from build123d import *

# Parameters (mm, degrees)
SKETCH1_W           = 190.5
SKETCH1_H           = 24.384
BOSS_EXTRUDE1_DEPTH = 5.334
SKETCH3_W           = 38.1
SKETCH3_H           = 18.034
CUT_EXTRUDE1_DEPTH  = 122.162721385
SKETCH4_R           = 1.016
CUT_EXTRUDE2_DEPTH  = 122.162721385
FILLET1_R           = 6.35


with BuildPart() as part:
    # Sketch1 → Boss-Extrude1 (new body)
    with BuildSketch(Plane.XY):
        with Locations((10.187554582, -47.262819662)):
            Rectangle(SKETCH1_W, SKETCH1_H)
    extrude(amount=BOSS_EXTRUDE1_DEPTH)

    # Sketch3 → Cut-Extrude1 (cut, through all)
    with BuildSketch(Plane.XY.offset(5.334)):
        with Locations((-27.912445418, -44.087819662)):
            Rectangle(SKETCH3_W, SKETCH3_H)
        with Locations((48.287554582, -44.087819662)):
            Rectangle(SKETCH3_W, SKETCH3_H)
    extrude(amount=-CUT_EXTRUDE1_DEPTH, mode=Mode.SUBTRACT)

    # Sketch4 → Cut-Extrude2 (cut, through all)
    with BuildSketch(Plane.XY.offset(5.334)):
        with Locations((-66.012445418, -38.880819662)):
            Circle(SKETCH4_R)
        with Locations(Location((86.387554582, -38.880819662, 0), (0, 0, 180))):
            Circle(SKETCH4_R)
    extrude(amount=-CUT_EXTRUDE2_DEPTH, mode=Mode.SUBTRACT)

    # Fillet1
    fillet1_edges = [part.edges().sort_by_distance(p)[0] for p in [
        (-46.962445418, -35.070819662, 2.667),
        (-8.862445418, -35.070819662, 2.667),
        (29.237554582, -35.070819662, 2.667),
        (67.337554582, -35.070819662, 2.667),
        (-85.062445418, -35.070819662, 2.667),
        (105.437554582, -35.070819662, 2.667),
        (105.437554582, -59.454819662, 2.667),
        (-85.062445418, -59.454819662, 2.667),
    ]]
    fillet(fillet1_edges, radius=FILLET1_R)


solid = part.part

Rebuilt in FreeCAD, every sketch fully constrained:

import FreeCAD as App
import Part
import Sketcher

V = App.Vector
Q = App.Units.Quantity


def edges_at(feature, points):
    """Names of the edges that pass closest to the given points."""
    edges = feature.Shape.Edges
    near = lambda p: min(range(len(edges)), key=lambda i: edges[i].distToShape(Part.Vertex(*p))[0])
    return sorted({f"Edge{near(p) + 1}" for p in points})


def add_polygon(sketch, points):
    """Adds a closed chain of lines whose ends are joined by coincident constraints."""
    first, n = sketch.GeometryCount, len(points)
    for a, b in zip(points, points[1:] + points[:1]):
        sketch.addGeometry(Part.LineSegment(App.Vector(*a, 0), App.Vector(*b, 0)), False)
    for i in range(n):
        sketch.addConstraint(Sketcher.Constraint("Coincident", first + i, 2, first + (i + 1) % n, 1))

doc = App.newDocument("Part")
body = doc.addObject("PartDesign::Body", "Body")

# Sketch on XY plane
sketch1 = doc.addObject("Sketcher::SketchObject", "Sketch")
body.addObject(sketch1)
sketch1.AttachmentSupport = (doc.XY_Plane, [""])
sketch1.MapMode = "FlatFace"
add_polygon(sketch1, [(-85, -35), (-85, -59), (105, -59), (105, -35)])  # lines 0-3
sketch1.addConstraint(Sketcher.Constraint("Vertical", 0))
sketch1.addConstraint(Sketcher.Constraint("Horizontal", 1))
sketch1.addConstraint(Sketcher.Constraint("Vertical", 2))
sketch1.addConstraint(Sketcher.Constraint("Horizontal", 3))
sketch1.addConstraint(Sketcher.Constraint("DistanceX", 1, 1, 1, 2, Q("7.5 in")))
sketch1.addConstraint(Sketcher.Constraint("DistanceY", 0, 2, 0, 1, Q("0.96 in")))
sketch1.addConstraint(Sketcher.Constraint("DistanceY", 0, 2, -1, 1, 59.45482))
sketch1.addConstraint(Sketcher.Constraint("DistanceX", 0, 2, -1, 1, 85.062445))
pad1 = doc.addObject("PartDesign::Pad", "Pad")
body.addObject(pad1)
pad1.Profile = sketch1
pad1.Length = Q("0.21 in")

# Sketch on XY plane
sketch2 = doc.addObject("Sketcher::SketchObject", "Sketch001")
body.addObject(sketch2)
sketch2.AttachmentSupport = (doc.XY_Plane, [""])
sketch2.MapMode = "FlatFace"
sketch2.AttachmentOffset = App.Placement(V(0, 0, 0.21 * 25.4), App.Rotation())
add_polygon(sketch2, [(-47, -35), (-47, -53), (-9, -53), (-9, -35)])  # lines 0-3
add_polygon(sketch2, [(29, -35), (29, -53), (67, -53), (67, -35)])  # lines 4-7
sketch2.addConstraint(Sketcher.Constraint("Vertical", 0))
sketch2.addConstraint(Sketcher.Constraint("Horizontal", 1))
sketch2.addConstraint(Sketcher.Constraint("Vertical", 2))
sketch2.addConstraint(Sketcher.Constraint("Horizontal", 3))
sketch2.addConstraint(Sketcher.Constraint("Vertical", 4))
sketch2.addConstraint(Sketcher.Constraint("Horizontal", 5))
sketch2.addConstraint(Sketcher.Constraint("Vertical", 6))
sketch2.addConstraint(Sketcher.Constraint("Horizontal", 7))
sketch2.addConstraint(Sketcher.Constraint("Horizontal", 1, 2, 4, 2))
sketch2.addConstraint(Sketcher.Constraint("Horizontal", 3, 2, 6, 2))
sketch2.addConstraint(Sketcher.Constraint("Equal", 3, 5))
sketch2.addConstraint(Sketcher.Constraint("DistanceX", 1, 1, 1, 2, Q("1.5 in")))
sketch2.addConstraint(Sketcher.Constraint("DistanceX", 0, 2, 4, 2, Q("3 in")))
sketch2.addConstraint(Sketcher.Constraint("DistanceY", 0, 2, 0, 1, Q("0.71 in")))
sketch2.addConstraint(Sketcher.Constraint("DistanceY", 0, 2, -1, 1, 53.10482))
sketch2.addConstraint(Sketcher.Constraint("DistanceX", 0, 2, -1, 1, 46.962445))
pocket1 = doc.addObject("PartDesign::Pocket", "Pocket")
body.addObject(pocket1)
pocket1.Profile = sketch2
pocket1.Type = "ThroughAll"

# Sketch on XY plane
sketch3 = doc.addObject("Sketcher::SketchObject", "Sketch002")
body.addObject(sketch3)
sketch3.AttachmentSupport = (doc.XY_Plane, [""])
sketch3.MapMode = "FlatFace"
sketch3.AttachmentOffset = App.Placement(V(0, 0, 0.21 * 25.4), App.Rotation())
sketch3.addGeometry(Part.Circle(V(-66, -38.9, 0), V(0, 0, 1), 1), False)
sketch3.addGeometry(Part.Circle(V(86.4, -38.9, 0), V(0, 0, 1), 1), False)
sketch3.addConstraint(Sketcher.Constraint("Equal", 0, 1))
sketch3.addConstraint(Sketcher.Constraint("Horizontal", 0, 3, 1, 3))
sketch3.addConstraint(Sketcher.Constraint("Diameter", 0, Q("0.08 in")))
sketch3.addConstraint(Sketcher.Constraint("DistanceX", 0, 3, 1, 3, Q("6 in")))
sketch3.addConstraint(Sketcher.Constraint("DistanceY", 0, 3, -1, 1, 38.88082))
sketch3.addConstraint(Sketcher.Constraint("DistanceX", 0, 3, -1, 1, 66.012445))
pocket2 = doc.addObject("PartDesign::Pocket", "Pocket001")
body.addObject(pocket2)
pocket2.Profile = sketch3
pocket2.Type = "ThroughAll"
doc.recompute()

fillet = doc.addObject("PartDesign::Fillet", "Fillet")
body.addObject(fillet)
fillet.Base = (pocket2, edges_at(pocket2, [
    (-46.962, -35.071, 2.667),
    (-8.862, -35.071, 2.667),
    (29.238, -35.071, 2.667),
    (67.338, -35.071, 2.667),
    (-85.062, -35.071, 2.667),
    (105.438, -35.071, 2.667),
    (105.438, -59.455, 2.667),
    (-85.062, -59.455, 2.667),
]))
fillet.Radius = Q("0.25 in")

doc.recompute()
